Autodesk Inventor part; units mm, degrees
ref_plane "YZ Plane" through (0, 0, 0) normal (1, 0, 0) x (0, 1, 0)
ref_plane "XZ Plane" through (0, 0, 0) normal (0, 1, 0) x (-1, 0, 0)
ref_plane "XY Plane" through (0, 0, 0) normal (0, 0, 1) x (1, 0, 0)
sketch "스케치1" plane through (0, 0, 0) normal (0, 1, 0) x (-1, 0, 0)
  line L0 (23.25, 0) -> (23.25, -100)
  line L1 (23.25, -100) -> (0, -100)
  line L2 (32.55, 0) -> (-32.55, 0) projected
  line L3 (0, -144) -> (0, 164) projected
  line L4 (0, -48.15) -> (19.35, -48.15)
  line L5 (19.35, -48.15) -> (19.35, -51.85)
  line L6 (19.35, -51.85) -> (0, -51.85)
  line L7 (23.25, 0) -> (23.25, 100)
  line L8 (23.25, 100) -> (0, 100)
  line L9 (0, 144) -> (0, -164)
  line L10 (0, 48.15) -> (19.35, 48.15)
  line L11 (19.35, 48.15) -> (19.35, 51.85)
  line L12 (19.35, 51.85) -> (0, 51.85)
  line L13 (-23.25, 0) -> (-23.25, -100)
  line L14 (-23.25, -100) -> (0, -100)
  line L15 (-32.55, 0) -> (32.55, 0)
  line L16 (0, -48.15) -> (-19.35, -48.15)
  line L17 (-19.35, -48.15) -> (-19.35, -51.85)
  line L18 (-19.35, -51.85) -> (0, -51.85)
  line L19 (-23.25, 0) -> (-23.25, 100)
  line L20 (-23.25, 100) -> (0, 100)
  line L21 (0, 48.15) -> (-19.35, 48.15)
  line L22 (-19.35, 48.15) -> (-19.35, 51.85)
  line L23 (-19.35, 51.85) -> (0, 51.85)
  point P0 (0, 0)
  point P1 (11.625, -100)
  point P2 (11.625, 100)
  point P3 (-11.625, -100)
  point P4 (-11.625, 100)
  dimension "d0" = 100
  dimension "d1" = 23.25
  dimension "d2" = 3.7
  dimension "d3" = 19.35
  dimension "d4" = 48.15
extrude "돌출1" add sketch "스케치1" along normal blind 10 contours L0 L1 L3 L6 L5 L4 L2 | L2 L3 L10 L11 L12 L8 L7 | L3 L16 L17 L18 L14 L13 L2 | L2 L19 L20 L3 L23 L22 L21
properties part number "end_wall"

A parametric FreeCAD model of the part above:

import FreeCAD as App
import Part
import Sketcher


def add_polygon(sketch, points):
    """Adds a closed chain of lines whose ends are joined by coincident constraints."""
    first, n = sketch.GeometryCount, len(points)
    for a, b in zip(points, points[1:] + points[:1]):
        sketch.addGeometry(Part.LineSegment(App.Vector(*a, 0), App.Vector(*b, 0)), False)
    for i in range(n):
        sketch.addConstraint(Sketcher.Constraint("Coincident", first + i, 2, first + (i + 1) % n, 1))

doc = App.newDocument("Part")
body = doc.addObject("PartDesign::Body", "Body")

sketch1 = body.newObject("Sketcher::SketchObject", "Sketch")
sketch1.AttachmentSupport = (doc.getObject("XZ_Plane"), [""])
sketch1.MapMode = "FlatFace"
add_polygon(sketch1, [(-23.2, -100), (-23.2, 100), (23.2, 100), (23.2, -100)])
add_polygon(sketch1, [(-19.4, -51.9), (19.4, -51.9), (19.4, -48.1), (-19.4, -48.1)])
add_polygon(sketch1, [(-19.4, 48.1), (19.4, 48.1), (19.4, 51.9), (-19.4, 51.9)])
sketch1.addConstraint(Sketcher.Constraint("Vertical", 0))
sketch1.addConstraint(Sketcher.Constraint("Horizontal", 1))
sketch1.addConstraint(Sketcher.Constraint("Vertical", 2))
sketch1.addConstraint(Sketcher.Constraint("Horizontal", 3))
sketch1.addConstraint(Sketcher.Constraint("Horizontal", 4))
sketch1.addConstraint(Sketcher.Constraint("Vertical", 5))
sketch1.addConstraint(Sketcher.Constraint("Horizontal", 6))
sketch1.addConstraint(Sketcher.Constraint("Vertical", 7))
sketch1.addConstraint(Sketcher.Constraint("Horizontal", 8))
sketch1.addConstraint(Sketcher.Constraint("Vertical", 9))
sketch1.addConstraint(Sketcher.Constraint("Horizontal", 10))
sketch1.addConstraint(Sketcher.Constraint("Vertical", 11))
sketch1.addConstraint(Sketcher.Constraint("Symmetric", 0, 2, 2, 2, -1, 1))
sketch1.addConstraint(Sketcher.Constraint("Symmetric", 6, 2, 8, 2, -1, 1))
sketch1.addConstraint(Sketcher.Constraint("Symmetric", 4, 2, 10, 2, -1, 1))
sketch1.addConstraint(Sketcher.Constraint("Vertical", 5, 2, 8, 2))
sketch1.addConstraint(Sketcher.Constraint("DistanceY", 5, 1, 5, 2, 3.7))
sketch1.addConstraint(Sketcher.Constraint("DistanceY", -1, 1, 0, 2, 100.0))
sketch1.addConstraint(Sketcher.Constraint("DistanceY", 4, 2, 8, 2, 100.0))
sketch1.addConstraint(Sketcher.Constraint("DistanceX", 0, 2, -1, 1, 23.25))
sketch1.addConstraint(Sketcher.Constraint("DistanceX", -1, 1, 4, 2, 19.35))
pad1 = body.newObject("PartDesign::Pad", "Pad")
pad1.Profile = sketch1
pad1.Length = 10
pad1.Reversed = True

doc.recompute()
